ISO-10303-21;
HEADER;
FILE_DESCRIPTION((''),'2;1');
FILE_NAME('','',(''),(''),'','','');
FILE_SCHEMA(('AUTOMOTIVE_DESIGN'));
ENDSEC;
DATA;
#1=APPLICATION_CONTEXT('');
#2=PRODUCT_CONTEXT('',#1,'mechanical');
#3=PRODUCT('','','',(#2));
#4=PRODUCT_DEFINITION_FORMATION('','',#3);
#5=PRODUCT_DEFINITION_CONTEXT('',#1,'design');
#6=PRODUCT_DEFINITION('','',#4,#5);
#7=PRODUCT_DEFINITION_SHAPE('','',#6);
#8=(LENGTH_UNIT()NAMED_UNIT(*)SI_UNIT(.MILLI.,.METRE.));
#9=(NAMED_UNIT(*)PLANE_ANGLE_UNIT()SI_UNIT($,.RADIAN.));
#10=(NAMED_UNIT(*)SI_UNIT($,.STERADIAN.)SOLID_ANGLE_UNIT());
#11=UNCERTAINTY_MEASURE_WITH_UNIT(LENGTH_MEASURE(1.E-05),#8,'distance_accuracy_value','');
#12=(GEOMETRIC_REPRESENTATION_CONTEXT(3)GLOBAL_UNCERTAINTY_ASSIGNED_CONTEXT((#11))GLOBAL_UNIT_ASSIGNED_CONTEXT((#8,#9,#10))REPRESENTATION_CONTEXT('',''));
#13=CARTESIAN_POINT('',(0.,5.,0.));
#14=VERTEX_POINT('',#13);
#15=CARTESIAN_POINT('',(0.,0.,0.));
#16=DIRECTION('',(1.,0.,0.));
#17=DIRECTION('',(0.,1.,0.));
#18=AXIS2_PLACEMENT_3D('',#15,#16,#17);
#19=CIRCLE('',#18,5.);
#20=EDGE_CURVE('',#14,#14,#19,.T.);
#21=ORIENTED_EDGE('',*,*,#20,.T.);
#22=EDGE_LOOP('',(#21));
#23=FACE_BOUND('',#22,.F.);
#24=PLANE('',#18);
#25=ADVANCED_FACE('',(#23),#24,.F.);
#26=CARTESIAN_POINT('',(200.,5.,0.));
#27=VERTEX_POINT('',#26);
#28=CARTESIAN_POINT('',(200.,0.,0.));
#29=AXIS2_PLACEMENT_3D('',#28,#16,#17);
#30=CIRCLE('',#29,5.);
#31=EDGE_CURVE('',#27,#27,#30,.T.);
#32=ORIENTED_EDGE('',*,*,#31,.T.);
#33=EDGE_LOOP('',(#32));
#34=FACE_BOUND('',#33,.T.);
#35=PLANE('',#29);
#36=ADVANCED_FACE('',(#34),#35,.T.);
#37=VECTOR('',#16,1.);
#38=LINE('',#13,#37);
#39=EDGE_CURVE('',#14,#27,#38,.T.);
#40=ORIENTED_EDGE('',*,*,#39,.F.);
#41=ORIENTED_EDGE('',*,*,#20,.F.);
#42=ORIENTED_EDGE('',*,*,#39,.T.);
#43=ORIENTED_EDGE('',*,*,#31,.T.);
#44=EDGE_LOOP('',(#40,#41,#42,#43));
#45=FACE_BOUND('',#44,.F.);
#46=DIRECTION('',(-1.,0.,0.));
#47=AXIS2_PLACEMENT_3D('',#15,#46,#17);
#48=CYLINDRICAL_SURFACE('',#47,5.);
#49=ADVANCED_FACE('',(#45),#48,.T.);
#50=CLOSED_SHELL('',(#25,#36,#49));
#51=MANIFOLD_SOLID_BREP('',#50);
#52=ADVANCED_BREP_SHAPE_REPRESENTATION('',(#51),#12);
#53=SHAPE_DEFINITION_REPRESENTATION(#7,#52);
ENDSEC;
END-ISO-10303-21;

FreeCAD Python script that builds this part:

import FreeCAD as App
import Part
import Sketcher
from FreeCAD import Vector

doc = App.newDocument("Part")
body = doc.addObject("PartDesign::Body", "Body")

# Sketch on YZ plane
sketch1 = body.newObject("Sketcher::SketchObject", "Sketch")
sketch1.AttachmentSupport = (doc.getObject("YZ_Plane"), [""])
sketch1.MapMode = "FlatFace"
sketch1.addGeometry(Part.Circle(Vector(0, 0, 0), Vector(0, 0, 1), 5), False)
sketch1.addConstraint([
    Sketcher.Constraint("Coincident", 0, 3, -1, 1),
    Sketcher.Constraint("Diameter", 0, 10.0),
])
pad1 = body.newObject("PartDesign::Pad", "Pad")
pad1.Profile = sketch1
pad1.Length = 200

doc.recompute()
